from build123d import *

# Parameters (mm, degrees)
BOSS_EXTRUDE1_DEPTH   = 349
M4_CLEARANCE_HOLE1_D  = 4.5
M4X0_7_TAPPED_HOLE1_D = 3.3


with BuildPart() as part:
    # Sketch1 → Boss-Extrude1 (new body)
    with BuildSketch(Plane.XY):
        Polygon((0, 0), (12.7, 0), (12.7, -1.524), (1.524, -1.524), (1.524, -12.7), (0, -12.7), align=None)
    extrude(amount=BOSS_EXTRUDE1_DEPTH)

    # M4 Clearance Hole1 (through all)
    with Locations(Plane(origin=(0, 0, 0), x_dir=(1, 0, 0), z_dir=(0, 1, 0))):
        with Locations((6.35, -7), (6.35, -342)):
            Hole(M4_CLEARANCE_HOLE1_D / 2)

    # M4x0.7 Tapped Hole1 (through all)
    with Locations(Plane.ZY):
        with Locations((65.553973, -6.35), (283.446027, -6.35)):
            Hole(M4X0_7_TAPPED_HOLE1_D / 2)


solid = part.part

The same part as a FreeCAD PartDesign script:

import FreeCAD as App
import Part
import Sketcher

doc = App.newDocument("Part")
params = doc.addObject("Spreadsheet::Sheet", "Params")
for row, (alias, value) in enumerate([
    ("sketch1_width", "12.7 mm"),
    ("pad1_length", "349 mm"),
    ("sketch2_diameter", "4.5 mm"),
    ("hole_diameter", "4.5 mm"),
    ("sketch3_diameter", "3.3 mm"),
    ("hole2_diameter", "3.3 mm"),
], start=1):
    params.set(f"A{row}", alias)
    params.set(f"B{row}", "=" + value)
    params.setAlias(f"B{row}", alias)

body = doc.addObject("PartDesign::Body", "Body")

# Sketch on XY plane
sketch1 = body.newObject("Sketcher::SketchObject", "Sketch")
sketch1.AttachmentSupport = (doc.getObject("XY_Plane"), [""])
sketch1.MapMode = "FlatFace"
sketch1.addGeometry(Part.LineSegment(App.Vector(12.7, 0, 0), App.Vector(0, 0, 0)), False)
sketch1.addGeometry(Part.LineSegment(App.Vector(0, 0, 0), App.Vector(0, -12.7, 0)), False)
sketch1.addGeometry(Part.LineSegment(App.Vector(0, -12.7, 0), App.Vector(1.5, -12.7, 0)), False)
sketch1.addGeometry(Part.LineSegment(App.Vector(1.5, -12.7, 0), App.Vector(1.5, -1.5, 0)), False)
sketch1.addGeometry(Part.LineSegment(App.Vector(1.5, -1.5, 0), App.Vector(12.7, -1.5, 0)), False)
sketch1.addGeometry(Part.LineSegment(App.Vector(12.7, -1.5, 0), App.Vector(12.7, 0, 0)), False)
sketch1.addConstraint(Sketcher.Constraint("Coincident", 0, 2, 1, 1))
sketch1.addConstraint(Sketcher.Constraint("Coincident", 1, 2, 2, 1))
sketch1.addConstraint(Sketcher.Constraint("Coincident", 2, 2, 3, 1))
sketch1.addConstraint(Sketcher.Constraint("Coincident", 3, 2, 4, 1))
sketch1.addConstraint(Sketcher.Constraint("Coincident", 4, 2, 5, 1))
sketch1.addConstraint(Sketcher.Constraint("Coincident", 5, 2, 0, 1))
sketch1.addConstraint(Sketcher.Constraint("Horizontal", 0))
sketch1.addConstraint(Sketcher.Constraint("Vertical", 1))
sketch1.addConstraint(Sketcher.Constraint("Horizontal", 2))
sketch1.addConstraint(Sketcher.Constraint("Vertical", 3))
sketch1.addConstraint(Sketcher.Constraint("Horizontal", 4))
sketch1.addConstraint(Sketcher.Constraint("Vertical", 5))
sketch1.addConstraint(Sketcher.Constraint("Coincident", 0, 2, -1, 1))
sketch1.addConstraint(Sketcher.Constraint("Equal", 0, 1))
sketch1.addConstraint(Sketcher.Constraint("Equal", 4, 3))
sketch1.addConstraint(Sketcher.Constraint("DistanceX", 0, 2, 0, 1, 12.7))
sketch1.addConstraint(Sketcher.Constraint("DistanceX", 2, 1, 2, 2, 1.524))
sketch1.setExpression("Constraints[15]", "Params.sketch1_width")
pad1 = body.newObject("PartDesign::Pad", "Pad")
pad1.Profile = sketch1
pad1.setExpression("Length", "Params.pad1_length")

# Sketch on XZ plane
sketch2 = body.newObject("Sketcher::SketchObject", "Sketch001")
sketch2.AttachmentSupport = (doc.getObject("XZ_Plane"), [""])
sketch2.MapMode = "FlatFace"
sketch2.addGeometry(Part.Circle(App.Vector(6.3, 7, 0), App.Vector(0, 0, 1), 2.2), False)
sketch2.addGeometry(Part.Circle(App.Vector(6.3, 342, 0), App.Vector(0, 0, 1), 2.2), False)
sketch2.addConstraint(Sketcher.Constraint("Equal", 0, 1))
sketch2.addConstraint(Sketcher.Constraint("Vertical", 0, 3, 1, 3))
sketch2.addConstraint(Sketcher.Constraint("Diameter", 0, 4.5))
sketch2.addConstraint(Sketcher.Constraint("DistanceY", -1, 1, 0, 3, 7.0))
sketch2.addConstraint(Sketcher.Constraint("DistanceY", -1, 1, 1, 3, 342.0))
sketch2.addConstraint(Sketcher.Constraint("DistanceX", -1, 1, 0, 3, 6.35))
sketch2.setExpression("Constraints[2]", "Params.sketch2_diameter")
doc.recompute()
hole = body.newObject("PartDesign::Hole", "Hole")
hole.Profile = sketch2
hole.ThreadType = "None"
hole.setExpression("Diameter", "Params.hole_diameter")
hole.DepthType = "ThroughAll"
hole.Reversed = True

# Sketch on YZ plane
sketch3 = body.newObject("Sketcher::SketchObject", "Sketch002")
sketch3.AttachmentSupport = (doc.getObject("YZ_Plane"), [""])
sketch3.MapMode = "FlatFace"
sketch3.addGeometry(Part.Circle(App.Vector(-6.3, 65.6, 0), App.Vector(0, 0, 1), 1.6), False)
sketch3.addGeometry(Part.Circle(App.Vector(-6.3, 283.4, 0), App.Vector(0, 0, 1), 1.6), False)
sketch3.addConstraint(Sketcher.Constraint("Equal", 0, 1))
sketch3.addConstraint(Sketcher.Constraint("Vertical", 0, 3, 1, 3))
sketch3.addConstraint(Sketcher.Constraint("Diameter", 0, 3.3))
sketch3.addConstraint(Sketcher.Constraint("DistanceX", 0, 3, -1, 1, 6.35))
sketch3.addConstraint(Sketcher.Constraint("DistanceY", -1, 1, 0, 3, 65.553973))
sketch3.addConstraint(Sketcher.Constraint("DistanceY", -1, 1, 1, 3, 283.446027))
sketch3.setExpression("Constraints[2]", "Params.sketch3_diameter")
doc.recompute()
hole2 = body.newObject("PartDesign::Hole", "Hole001")
hole2.Profile = sketch3
hole2.ThreadType = "None"
hole2.setExpression("Diameter", "Params.hole2_diameter")
hole2.DepthType = "ThroughAll"
hole2.Reversed = True

doc.recompute()
